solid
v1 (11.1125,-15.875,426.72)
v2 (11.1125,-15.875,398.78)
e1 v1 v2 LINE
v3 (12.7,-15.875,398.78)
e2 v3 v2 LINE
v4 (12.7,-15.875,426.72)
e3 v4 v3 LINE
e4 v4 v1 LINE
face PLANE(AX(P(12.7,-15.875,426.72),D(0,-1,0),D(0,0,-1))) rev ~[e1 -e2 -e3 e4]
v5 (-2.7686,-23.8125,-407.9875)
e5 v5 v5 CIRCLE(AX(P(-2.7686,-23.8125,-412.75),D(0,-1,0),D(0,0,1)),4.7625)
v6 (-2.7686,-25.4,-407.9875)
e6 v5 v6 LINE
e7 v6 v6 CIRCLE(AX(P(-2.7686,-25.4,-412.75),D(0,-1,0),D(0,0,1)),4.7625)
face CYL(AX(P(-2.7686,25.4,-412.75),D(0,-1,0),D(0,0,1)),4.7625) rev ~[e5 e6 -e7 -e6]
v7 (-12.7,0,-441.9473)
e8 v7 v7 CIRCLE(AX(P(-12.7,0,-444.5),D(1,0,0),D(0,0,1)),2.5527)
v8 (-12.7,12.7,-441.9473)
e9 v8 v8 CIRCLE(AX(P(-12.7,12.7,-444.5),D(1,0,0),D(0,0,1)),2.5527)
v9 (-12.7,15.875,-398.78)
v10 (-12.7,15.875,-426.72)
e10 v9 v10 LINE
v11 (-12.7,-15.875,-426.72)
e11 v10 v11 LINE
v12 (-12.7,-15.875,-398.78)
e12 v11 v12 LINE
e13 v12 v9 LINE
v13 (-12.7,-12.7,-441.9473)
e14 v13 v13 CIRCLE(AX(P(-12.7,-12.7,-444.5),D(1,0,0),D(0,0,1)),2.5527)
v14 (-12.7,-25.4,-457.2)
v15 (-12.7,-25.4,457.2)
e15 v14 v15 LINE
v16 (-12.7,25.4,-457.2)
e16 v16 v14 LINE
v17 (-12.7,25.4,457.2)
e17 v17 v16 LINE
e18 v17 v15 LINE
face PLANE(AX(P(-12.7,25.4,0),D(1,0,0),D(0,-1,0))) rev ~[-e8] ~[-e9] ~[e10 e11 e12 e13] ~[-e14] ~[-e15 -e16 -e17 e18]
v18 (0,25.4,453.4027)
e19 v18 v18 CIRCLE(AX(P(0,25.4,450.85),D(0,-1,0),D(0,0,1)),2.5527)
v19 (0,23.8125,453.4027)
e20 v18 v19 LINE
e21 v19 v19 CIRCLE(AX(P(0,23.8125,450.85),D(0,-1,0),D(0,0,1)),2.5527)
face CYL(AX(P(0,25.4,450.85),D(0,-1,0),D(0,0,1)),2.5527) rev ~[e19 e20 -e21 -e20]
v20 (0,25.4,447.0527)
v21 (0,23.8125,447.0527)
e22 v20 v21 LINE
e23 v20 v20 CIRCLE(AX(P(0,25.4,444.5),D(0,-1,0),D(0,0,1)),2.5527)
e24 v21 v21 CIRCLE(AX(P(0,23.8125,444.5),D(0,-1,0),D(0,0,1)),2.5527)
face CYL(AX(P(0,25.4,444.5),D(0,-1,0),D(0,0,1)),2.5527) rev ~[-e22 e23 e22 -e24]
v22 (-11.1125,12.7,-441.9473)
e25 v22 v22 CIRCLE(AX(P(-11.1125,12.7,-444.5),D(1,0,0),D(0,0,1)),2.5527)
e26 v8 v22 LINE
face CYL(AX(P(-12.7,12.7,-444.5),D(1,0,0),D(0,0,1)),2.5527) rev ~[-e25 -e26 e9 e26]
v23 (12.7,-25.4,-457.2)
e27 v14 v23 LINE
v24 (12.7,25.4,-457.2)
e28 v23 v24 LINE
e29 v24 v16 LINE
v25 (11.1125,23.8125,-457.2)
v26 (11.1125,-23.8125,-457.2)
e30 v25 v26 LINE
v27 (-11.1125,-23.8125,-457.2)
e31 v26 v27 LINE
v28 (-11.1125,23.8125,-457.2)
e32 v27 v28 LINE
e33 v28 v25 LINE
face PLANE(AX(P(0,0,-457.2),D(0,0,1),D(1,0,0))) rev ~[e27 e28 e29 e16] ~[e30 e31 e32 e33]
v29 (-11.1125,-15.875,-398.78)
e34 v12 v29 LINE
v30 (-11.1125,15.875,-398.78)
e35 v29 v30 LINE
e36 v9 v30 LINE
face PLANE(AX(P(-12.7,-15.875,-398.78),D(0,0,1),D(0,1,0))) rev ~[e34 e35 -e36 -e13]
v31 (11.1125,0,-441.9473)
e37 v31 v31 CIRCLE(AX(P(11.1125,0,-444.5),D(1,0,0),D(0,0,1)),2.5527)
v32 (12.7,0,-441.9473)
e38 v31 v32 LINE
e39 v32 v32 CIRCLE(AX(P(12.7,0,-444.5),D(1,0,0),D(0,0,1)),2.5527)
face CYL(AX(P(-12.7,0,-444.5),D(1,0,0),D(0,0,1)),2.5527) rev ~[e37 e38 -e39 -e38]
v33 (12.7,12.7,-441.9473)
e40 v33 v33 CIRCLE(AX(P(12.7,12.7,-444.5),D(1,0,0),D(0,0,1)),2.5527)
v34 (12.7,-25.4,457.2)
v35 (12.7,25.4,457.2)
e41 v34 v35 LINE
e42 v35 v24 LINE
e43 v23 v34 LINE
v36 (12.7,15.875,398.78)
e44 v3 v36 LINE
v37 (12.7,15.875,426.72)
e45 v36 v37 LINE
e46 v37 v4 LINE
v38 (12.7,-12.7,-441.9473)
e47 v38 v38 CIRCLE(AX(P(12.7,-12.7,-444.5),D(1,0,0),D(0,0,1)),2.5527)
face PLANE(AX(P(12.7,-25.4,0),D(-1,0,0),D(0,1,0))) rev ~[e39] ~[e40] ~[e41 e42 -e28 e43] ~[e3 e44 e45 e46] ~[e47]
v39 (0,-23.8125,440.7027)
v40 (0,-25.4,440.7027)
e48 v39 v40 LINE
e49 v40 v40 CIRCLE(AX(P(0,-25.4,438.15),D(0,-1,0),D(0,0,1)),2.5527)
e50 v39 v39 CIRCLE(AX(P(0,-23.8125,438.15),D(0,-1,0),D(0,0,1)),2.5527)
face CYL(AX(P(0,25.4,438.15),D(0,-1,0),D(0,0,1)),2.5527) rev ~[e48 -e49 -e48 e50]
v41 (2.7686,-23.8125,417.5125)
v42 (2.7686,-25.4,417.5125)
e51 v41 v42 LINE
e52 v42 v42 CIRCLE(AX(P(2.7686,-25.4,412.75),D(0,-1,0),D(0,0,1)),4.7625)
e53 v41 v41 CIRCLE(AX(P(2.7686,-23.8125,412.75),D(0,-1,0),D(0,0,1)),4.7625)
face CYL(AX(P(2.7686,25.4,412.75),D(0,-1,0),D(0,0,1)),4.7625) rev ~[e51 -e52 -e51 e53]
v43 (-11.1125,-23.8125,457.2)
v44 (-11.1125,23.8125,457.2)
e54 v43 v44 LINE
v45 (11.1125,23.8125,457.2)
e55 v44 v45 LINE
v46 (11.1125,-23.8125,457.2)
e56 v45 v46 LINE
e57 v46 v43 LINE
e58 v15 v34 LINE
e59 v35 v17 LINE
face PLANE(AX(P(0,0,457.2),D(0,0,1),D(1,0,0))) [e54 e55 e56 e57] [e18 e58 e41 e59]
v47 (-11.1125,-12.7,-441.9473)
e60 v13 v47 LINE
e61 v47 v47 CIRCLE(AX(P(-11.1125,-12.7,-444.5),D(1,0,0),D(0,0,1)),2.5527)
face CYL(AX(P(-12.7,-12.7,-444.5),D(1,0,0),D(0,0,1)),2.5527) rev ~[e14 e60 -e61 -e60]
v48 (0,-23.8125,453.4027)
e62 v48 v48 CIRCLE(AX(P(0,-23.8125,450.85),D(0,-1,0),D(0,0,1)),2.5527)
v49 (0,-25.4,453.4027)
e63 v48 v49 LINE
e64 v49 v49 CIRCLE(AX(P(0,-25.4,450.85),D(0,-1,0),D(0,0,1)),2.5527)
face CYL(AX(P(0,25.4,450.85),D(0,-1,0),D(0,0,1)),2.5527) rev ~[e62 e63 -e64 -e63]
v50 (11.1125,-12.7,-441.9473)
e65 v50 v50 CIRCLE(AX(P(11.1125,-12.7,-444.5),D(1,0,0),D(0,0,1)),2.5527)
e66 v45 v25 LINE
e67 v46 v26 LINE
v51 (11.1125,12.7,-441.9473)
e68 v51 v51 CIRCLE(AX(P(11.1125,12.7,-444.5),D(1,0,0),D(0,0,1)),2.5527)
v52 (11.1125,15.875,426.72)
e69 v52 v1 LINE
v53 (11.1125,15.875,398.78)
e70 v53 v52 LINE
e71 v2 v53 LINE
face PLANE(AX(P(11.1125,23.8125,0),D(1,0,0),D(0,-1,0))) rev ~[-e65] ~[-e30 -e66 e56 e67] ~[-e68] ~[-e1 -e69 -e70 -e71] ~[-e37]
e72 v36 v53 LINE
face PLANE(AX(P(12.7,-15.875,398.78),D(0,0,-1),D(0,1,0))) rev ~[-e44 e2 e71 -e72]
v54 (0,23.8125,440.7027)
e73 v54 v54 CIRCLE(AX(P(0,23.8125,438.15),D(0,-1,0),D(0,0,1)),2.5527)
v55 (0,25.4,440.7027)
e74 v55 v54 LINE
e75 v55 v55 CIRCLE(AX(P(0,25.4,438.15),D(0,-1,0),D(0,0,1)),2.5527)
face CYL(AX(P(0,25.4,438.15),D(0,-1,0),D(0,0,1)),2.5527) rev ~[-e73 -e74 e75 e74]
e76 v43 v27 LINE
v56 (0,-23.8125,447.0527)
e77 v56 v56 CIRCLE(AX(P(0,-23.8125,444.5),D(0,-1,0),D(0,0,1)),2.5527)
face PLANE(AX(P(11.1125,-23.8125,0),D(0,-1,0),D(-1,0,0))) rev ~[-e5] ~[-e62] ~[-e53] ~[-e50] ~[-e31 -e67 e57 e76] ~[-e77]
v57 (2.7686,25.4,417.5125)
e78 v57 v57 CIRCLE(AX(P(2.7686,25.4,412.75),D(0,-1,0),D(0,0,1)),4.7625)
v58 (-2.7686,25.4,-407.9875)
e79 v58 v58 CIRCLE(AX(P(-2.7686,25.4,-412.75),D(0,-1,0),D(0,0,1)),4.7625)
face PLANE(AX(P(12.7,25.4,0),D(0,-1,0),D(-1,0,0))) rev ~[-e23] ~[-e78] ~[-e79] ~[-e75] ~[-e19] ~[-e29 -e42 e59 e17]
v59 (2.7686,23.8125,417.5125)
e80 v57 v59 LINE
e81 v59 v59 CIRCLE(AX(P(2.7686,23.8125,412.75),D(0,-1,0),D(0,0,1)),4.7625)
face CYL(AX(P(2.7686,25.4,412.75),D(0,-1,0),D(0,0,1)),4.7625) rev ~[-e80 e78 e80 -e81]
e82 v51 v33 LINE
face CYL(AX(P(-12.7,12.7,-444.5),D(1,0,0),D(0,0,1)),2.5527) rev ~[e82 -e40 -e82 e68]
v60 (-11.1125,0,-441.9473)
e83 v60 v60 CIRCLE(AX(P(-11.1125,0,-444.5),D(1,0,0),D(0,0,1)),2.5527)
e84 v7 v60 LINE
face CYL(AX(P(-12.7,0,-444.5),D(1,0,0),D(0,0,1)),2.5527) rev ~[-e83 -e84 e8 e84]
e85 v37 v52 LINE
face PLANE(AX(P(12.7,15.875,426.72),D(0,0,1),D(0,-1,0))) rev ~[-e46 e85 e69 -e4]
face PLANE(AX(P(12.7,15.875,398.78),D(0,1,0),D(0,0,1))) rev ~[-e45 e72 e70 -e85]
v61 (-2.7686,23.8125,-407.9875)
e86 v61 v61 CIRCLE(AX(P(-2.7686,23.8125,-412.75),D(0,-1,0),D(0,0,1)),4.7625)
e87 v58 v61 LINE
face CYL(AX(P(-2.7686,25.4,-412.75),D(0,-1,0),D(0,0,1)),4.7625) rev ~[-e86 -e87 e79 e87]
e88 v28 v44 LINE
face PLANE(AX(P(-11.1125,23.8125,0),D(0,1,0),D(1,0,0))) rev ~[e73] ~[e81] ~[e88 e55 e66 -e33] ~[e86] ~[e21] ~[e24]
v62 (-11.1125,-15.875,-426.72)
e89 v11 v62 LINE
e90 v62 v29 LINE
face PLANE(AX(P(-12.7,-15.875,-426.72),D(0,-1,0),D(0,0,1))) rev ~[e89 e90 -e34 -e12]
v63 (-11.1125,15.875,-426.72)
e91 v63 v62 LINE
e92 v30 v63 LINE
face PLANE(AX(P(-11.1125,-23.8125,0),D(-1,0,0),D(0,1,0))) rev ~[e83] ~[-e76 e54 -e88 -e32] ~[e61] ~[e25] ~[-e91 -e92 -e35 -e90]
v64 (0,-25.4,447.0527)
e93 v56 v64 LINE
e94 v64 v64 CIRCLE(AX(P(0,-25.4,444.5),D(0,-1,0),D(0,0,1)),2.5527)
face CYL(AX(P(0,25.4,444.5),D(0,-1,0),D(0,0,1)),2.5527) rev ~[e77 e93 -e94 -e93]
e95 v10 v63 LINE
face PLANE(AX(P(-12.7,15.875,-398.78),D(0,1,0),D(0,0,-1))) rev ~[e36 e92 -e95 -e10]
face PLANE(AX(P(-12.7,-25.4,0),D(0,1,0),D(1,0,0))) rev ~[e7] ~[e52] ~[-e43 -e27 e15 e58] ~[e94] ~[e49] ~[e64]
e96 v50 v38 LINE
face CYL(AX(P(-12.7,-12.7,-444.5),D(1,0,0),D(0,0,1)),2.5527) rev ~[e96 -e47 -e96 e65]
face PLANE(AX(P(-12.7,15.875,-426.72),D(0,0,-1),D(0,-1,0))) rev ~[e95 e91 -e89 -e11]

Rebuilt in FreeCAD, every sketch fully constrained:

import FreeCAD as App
import Part
import Sketcher
Q = App.Units.Quantity

doc = App.newDocument("Part")
body = doc.addObject("PartDesign::Body", "Body")

sketch1 = body.newObject("Sketcher::SketchObject", "Sketch")
sketch1.AttachmentSupport = (doc.getObject("XY_Plane"), [""])
sketch1.MapMode = "FlatFace"
sketch1.addGeometry([
    Part.LineSegment(App.Vector(-13, 25, 0), App.Vector(-13, -25, 0)),
    Part.LineSegment(App.Vector(-13, -25, 0), App.Vector(13, -25, 0)),
    Part.LineSegment(App.Vector(13, -25, 0), App.Vector(13, 25, 0)),
    Part.LineSegment(App.Vector(13, 25, 0), App.Vector(-13, 25, 0)),
    Part.LineSegment(App.Vector(-11, -24, 0), App.Vector(-11, 24, 0)),
    Part.LineSegment(App.Vector(-11, 24, 0), App.Vector(11, 24, 0)),
    Part.LineSegment(App.Vector(11, 24, 0), App.Vector(11, -24, 0)),
    Part.LineSegment(App.Vector(11, -24, 0), App.Vector(-11, -24, 0)),
], False)
sketch1.addConstraint([
    Sketcher.Constraint("Coincident", 0, 2, 1, 1),
    Sketcher.Constraint("Coincident", 1, 2, 2, 1),
    Sketcher.Constraint("Coincident", 2, 2, 3, 1),
    Sketcher.Constraint("Coincident", 3, 2, 0, 1),
    Sketcher.Constraint("Coincident", 4, 2, 5, 1),
    Sketcher.Constraint("Coincident", 5, 2, 6, 1),
    Sketcher.Constraint("Coincident", 6, 2, 7, 1),
    Sketcher.Constraint("Coincident", 7, 2, 4, 1),
    Sketcher.Constraint("Vertical", 0),
    Sketcher.Constraint("Horizontal", 1),
    Sketcher.Constraint("Vertical", 2),
    Sketcher.Constraint("Horizontal", 3),
    Sketcher.Constraint("Vertical", 4),
    Sketcher.Constraint("Horizontal", 5),
    Sketcher.Constraint("Vertical", 6),
    Sketcher.Constraint("Horizontal", 7),
    Sketcher.Constraint("Symmetric", 0, 2, 2, 2, -1, 1),
    Sketcher.Constraint("Symmetric", 4, 2, 6, 2, -1, 1),
    Sketcher.Constraint("DistanceX", 1, 1, 1, 2, Q("1 in")),
    Sketcher.Constraint("DistanceY", 0, 2, 0, 1, Q("2 in")),
    Sketcher.Constraint("DistanceX", 3, 2, 4, 2, Q("0.0625 in")),
    Sketcher.Constraint("DistanceY", 4, 2, 3, 2, Q("0.0625 in")),
])
pad1 = body.newObject("PartDesign::Pad", "Pad")
pad1.Profile = sketch1
pad1.Length = Q("36 in")
pad1.Midplane = True

sketch2 = body.newObject("Sketcher::SketchObject", "Sketch001")
sketch2.AttachmentSupport = (doc.getObject("XZ_Plane"), [""])
sketch2.MapMode = "FlatFace"
sketch2.AttachmentOffset = App.Placement(App.Vector(0, 0, -1 * 25.4), App.Rotation())
sketch2.addGeometry([
    Part.Circle(App.Vector(0, 450.9, 0), App.Vector(0, 0, 1), 2.6),
    Part.Circle(App.Vector(0, 444.5, 0), App.Vector(0, 0, 1), 2.6),
    Part.Circle(App.Vector(0, 438.1, 0), App.Vector(0, 0, 1), 2.6),
], False)
sketch2.addConstraint([
    Sketcher.Constraint("Equal", 0, 1),
    Sketcher.Constraint("Equal", 1, 2),
    Sketcher.Constraint("PointOnObject", 0, 3, -2),
    Sketcher.Constraint("PointOnObject", 1, 3, -2),
    Sketcher.Constraint("PointOnObject", 2, 3, -2),
    Sketcher.Constraint("Diameter", 0, Q("0.201 in")),
    Sketcher.Constraint("DistanceY", -1, 1, 1, 3, Q("17.5 in")),
    Sketcher.Constraint("DistanceY", 2, 3, 0, 3, Q("0.5 in")),
    Sketcher.Constraint("DistanceY", -1, 1, 0, 3, Q("17.75 in")),
])
doc.recompute()
hole = body.newObject("PartDesign::Hole", "Hole")
hole.Profile = sketch2
hole.ThreadType = "None"
hole.Diameter = Q("0.201 in")
hole.DepthType = "ThroughAll"
hole.Reversed = True

sketch3 = body.newObject("Sketcher::SketchObject", "Sketch002")
sketch3.AttachmentSupport = (doc.getObject("YZ_Plane"), [""])
sketch3.MapMode = "FlatFace"
sketch3.AttachmentOffset = App.Placement(App.Vector(0, 0, -0.5 * 25.4), App.Rotation())
sketch3.addGeometry([
    Part.Circle(App.Vector(12.7, -444.5, 0), App.Vector(0, 0, 1), 2.6),
    Part.Circle(App.Vector(0, -444.5, 0), App.Vector(0, 0, 1), 2.6),
    Part.Circle(App.Vector(-12.7, -444.5, 0), App.Vector(0, 0, 1), 2.6),
], False)
sketch3.addConstraint([
    Sketcher.Constraint("Equal", 0, 1),
    Sketcher.Constraint("Equal", 1, 2),
    Sketcher.Constraint("Symmetric", 0, 3, 2, 3, -2),
    Sketcher.Constraint("PointOnObject", 1, 3, -2),
    Sketcher.Constraint("Horizontal", 0, 3, 1, 3),
    Sketcher.Constraint("Diameter", 0, Q("0.201 in")),
    Sketcher.Constraint("DistanceX", 2, 3, 0, 3, Q("1 in")),
    Sketcher.Constraint("DistanceY", 0, 3, -1, 1, Q("17.5 in")),
])
doc.recompute()
hole2 = body.newObject("PartDesign::Hole", "Hole001")
hole2.Profile = sketch3
hole2.ThreadType = "None"
hole2.Diameter = Q("0.201 in")
hole2.DepthType = "ThroughAll"
hole2.Reversed = True

sketch4 = body.newObject("Sketcher::SketchObject", "Sketch003")
sketch4.AttachmentSupport = (doc.getObject("XZ_Plane"), [""])
sketch4.MapMode = "FlatFace"
sketch4.AttachmentOffset = App.Placement(App.Vector(0, 0, -1 * 25.4), App.Rotation())
sketch4.addGeometry(Part.Circle(App.Vector(2.8, 412.8, 0), App.Vector(0, 0, 1), 4.8), False)
sketch4.addConstraint([
    Sketcher.Constraint("Diameter", 0, Q("0.375 in")),
    Sketcher.Constraint("DistanceY", -1, 1, 0, 3, Q("16.25 in")),
    Sketcher.Constraint("DistanceX", -1, 1, 0, 3, Q("0.109 in")),
])
doc.recompute()
hole3 = body.newObject("PartDesign::Hole", "Hole002")
hole3.Profile = sketch4
hole3.ThreadType = "None"
hole3.Diameter = Q("0.375 in")
hole3.DepthType = "ThroughAll"
hole3.Reversed = True

sketch5 = body.newObject("Sketcher::SketchObject", "Sketch004")
sketch5.AttachmentSupport = (doc.getObject("XZ_Plane"), [""])
sketch5.MapMode = "FlatFace"
sketch5.AttachmentOffset = App.Placement(App.Vector(0, 0, -1 * 25.4), App.Rotation())
sketch5.addGeometry(Part.Circle(App.Vector(-2.8, -412.8, 0), App.Vector(0, 0, 1), 4.8), False)
sketch5.addConstraint([
    Sketcher.Constraint("Diameter", 0, Q("0.375 in")),
    Sketcher.Constraint("DistanceY", 0, 3, -1, 1, Q("16.25 in")),
    Sketcher.Constraint("DistanceX", 0, 3, -1, 1, Q("0.109 in")),
])
doc.recompute()
hole4 = body.newObject("PartDesign::Hole", "Hole003")
hole4.Profile = sketch5
hole4.ThreadType = "None"
hole4.Diameter = Q("0.375 in")
hole4.DepthType = "ThroughAll"
hole4.Reversed = True

sketch6 = body.newObject("Sketcher::SketchObject", "Sketch005")
sketch6.AttachmentSupport = (doc.getObject("YZ_Plane"), [""])
sketch6.MapMode = "FlatFace"
sketch6.AttachmentOffset = App.Placement(App.Vector(0, 0, 0.5 * 25.4), App.Rotation())
sketch6.addGeometry([
    Part.LineSegment(App.Vector(-16, 399, 0), App.Vector(16, 399, 0)),
    Part.LineSegment(App.Vector(16, 399, 0), App.Vector(16, 427, 0)),
    Part.LineSegment(App.Vector(16, 427, 0), App.Vector(-16, 427, 0)),
    Part.LineSegment(App.Vector(-16, 427, 0), App.Vector(-16, 399, 0)),
], False)
sketch6.addConstraint([
    Sketcher.Constraint("Coincident", 0, 2, 1, 1),
    Sketcher.Constraint("Coincident", 1, 2, 2, 1),
    Sketcher.Constraint("Coincident", 2, 2, 3, 1),
    Sketcher.Constraint("Coincident", 3, 2, 0, 1),
    Sketcher.Constraint("Horizontal", 0),
    Sketcher.Constraint("Vertical", 1),
    Sketcher.Constraint("Horizontal", 2),
    Sketcher.Constraint("Vertical", 3),
    Sketcher.Constraint("DistanceY", 1, 1, 1, 2, Q("1.1 in")),
    Sketcher.Constraint("DistanceX", 0, 1, 0, 2, Q("1.25 in")),
    Sketcher.Constraint("DistanceY", -1, 1, 0, 2, Q("15.7 in")),
    Sketcher.Constraint("DistanceX", -1, 1, 0, 2, Q("0.625 in")),
])
pocket1 = body.newObject("PartDesign::Pocket", "Pocket")
pocket1.Profile = sketch6
pocket1.Length = Q("0.0625 in")

sketch7 = body.newObject("Sketcher::SketchObject", "Sketch006")
sketch7.AttachmentSupport = (doc.getObject("YZ_Plane"), [""])
sketch7.MapMode = "FlatFace"
sketch7.AttachmentOffset = App.Placement(App.Vector(0, 0, -0.5 * 25.4), App.Rotation())
sketch7.addGeometry([
    Part.LineSegment(App.Vector(16, -427, 0), App.Vector(-16, -427, 0)),
    Part.LineSegment(App.Vector(-16, -427, 0), App.Vector(-16, -399, 0)),
    Part.LineSegment(App.Vector(-16, -399, 0), App.Vector(16, -399, 0)),
    Part.LineSegment(App.Vector(16, -399, 0), App.Vector(16, -427, 0)),
], False)
sketch7.addConstraint([
    Sketcher.Constraint("Coincident", 0, 2, 1, 1),
    Sketcher.Constraint("Coincident", 1, 2, 2, 1),
    Sketcher.Constraint("Coincident", 2, 2, 3, 1),
    Sketcher.Constraint("Coincident", 3, 2, 0, 1),
    Sketcher.Constraint("Horizontal", 0),
    Sketcher.Constraint("Vertical", 1),
    Sketcher.Constraint("Horizontal", 2),
    Sketcher.Constraint("Vertical", 3),
    Sketcher.Constraint("DistanceY", 1, 1, 1, 2, Q("1.1 in")),
    Sketcher.Constraint("DistanceX", 0, 2, 0, 1, Q("1.25 in")),
    Sketcher.Constraint("DistanceY", 0, 2, -1, 1, Q("16.8 in")),
    Sketcher.Constraint("DistanceX", 0, 2, -1, 1, Q("0.625 in")),
])
pocket2 = body.newObject("PartDesign::Pocket", "Pocket001")
pocket2.Profile = sketch7
pocket2.Length = Q("0.0625 in")
pocket2.Reversed = True

doc.recompute()
